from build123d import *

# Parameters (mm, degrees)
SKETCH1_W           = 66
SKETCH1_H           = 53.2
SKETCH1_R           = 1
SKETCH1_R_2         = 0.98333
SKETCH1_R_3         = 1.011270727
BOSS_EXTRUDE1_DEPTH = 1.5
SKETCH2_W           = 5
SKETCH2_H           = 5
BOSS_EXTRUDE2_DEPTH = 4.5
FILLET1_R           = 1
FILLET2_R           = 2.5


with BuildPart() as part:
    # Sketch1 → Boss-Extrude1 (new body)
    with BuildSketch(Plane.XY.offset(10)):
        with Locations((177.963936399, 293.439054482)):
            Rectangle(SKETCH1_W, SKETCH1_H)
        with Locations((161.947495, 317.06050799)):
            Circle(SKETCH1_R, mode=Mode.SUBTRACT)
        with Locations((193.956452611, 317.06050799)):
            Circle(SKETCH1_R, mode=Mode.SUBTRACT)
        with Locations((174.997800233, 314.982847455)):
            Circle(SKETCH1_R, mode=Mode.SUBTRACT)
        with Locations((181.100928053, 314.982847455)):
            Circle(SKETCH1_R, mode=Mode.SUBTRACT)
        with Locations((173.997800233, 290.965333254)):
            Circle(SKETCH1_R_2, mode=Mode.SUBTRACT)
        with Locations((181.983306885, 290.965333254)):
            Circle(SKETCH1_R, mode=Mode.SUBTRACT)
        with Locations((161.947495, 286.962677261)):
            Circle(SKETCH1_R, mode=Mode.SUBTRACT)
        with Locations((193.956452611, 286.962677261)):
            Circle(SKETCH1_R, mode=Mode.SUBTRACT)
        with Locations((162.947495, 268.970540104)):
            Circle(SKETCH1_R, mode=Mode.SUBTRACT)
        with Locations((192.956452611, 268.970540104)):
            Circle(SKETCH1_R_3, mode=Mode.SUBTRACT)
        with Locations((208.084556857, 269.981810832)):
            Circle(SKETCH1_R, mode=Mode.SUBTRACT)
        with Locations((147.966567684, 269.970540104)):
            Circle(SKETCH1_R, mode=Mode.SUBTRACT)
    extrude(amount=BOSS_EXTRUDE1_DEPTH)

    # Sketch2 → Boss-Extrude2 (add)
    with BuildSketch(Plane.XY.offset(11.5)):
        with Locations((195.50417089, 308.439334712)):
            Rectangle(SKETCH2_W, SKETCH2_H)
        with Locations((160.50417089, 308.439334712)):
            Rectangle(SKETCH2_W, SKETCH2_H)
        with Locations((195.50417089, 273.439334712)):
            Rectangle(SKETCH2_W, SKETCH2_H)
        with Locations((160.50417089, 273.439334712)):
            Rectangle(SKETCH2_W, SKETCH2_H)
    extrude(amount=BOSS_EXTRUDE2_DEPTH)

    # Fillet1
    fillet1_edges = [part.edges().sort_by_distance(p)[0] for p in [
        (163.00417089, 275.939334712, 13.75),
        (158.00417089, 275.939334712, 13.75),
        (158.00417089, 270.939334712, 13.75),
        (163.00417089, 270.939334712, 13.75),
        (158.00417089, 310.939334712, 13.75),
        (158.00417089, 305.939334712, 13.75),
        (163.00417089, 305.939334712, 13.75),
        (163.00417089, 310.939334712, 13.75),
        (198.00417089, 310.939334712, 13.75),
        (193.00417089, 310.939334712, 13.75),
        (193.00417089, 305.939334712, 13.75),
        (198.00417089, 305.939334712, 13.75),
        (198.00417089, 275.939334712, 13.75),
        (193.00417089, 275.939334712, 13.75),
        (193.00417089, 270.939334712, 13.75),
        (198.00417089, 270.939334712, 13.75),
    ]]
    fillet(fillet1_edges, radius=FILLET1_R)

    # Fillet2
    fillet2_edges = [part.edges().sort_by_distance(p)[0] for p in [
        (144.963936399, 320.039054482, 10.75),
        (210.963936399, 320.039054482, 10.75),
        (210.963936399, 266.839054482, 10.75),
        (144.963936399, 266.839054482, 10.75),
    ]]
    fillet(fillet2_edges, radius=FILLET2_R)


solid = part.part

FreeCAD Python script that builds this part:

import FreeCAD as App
import Part
import Sketcher
from FreeCAD import Vector
Q = App.Units.Quantity


def edges_at(feature, points):
    """Names of the edges that pass closest to the given points."""
    edges = feature.Shape.Edges
    near = lambda p: min(range(len(edges)), key=lambda i: edges[i].distToShape(Part.Vertex(*p))[0])
    return sorted({f"Edge{near(p) + 1}" for p in points})


def add_polygon(sketch, points):
    """Adds a closed chain of lines whose ends are joined by coincident constraints."""
    first, n = sketch.GeometryCount, len(points)
    for a, b in zip(points, points[1:] + points[:1]):
        sketch.addGeometry(Part.LineSegment(App.Vector(*a, 0), App.Vector(*b, 0)), False)
    for i in range(n):
        sketch.addConstraint(Sketcher.Constraint("Coincident", first + i, 2, first + (i + 1) % n, 1))

doc = App.newDocument("Part")
body = doc.addObject("PartDesign::Body", "Body")

sketch1 = doc.addObject("Sketcher::SketchObject", "Sketch")
body.addObject(sketch1)
sketch1.AttachmentSupport = (doc.XY_Plane, [""])
sketch1.MapMode = "FlatFace"
sketch1.AttachmentOffset = App.Placement(Vector(0, 0, 10), App.Rotation())
add_polygon(sketch1, [(145, 320), (145, 266.8), (211, 266.8), (211, 320)])
sketch1.addGeometry(Part.Circle(Vector(148, 270, 0), Vector(0, 0, 1), 1), False)
sketch1.addGeometry(Part.Circle(Vector(162.9, 269, 0), Vector(0, 0, 1), 1), False)
sketch1.addGeometry(Part.Circle(Vector(161.9, 287, 0), Vector(0, 0, 1), 1), False)
sketch1.addGeometry(Part.Circle(Vector(174, 291, 0), Vector(0, 0, 1), 1), False)
sketch1.addGeometry(Part.Circle(Vector(193, 269, 0), Vector(0, 0, 1), 1), False)
sketch1.addGeometry(Part.Circle(Vector(208.1, 270, 0), Vector(0, 0, 1), 1), False)
sketch1.addGeometry(Part.Circle(Vector(182, 291, 0), Vector(0, 0, 1), 1), False)
sketch1.addGeometry(Part.Circle(Vector(194, 287, 0), Vector(0, 0, 1), 1), False)
sketch1.addGeometry(Part.Circle(Vector(161.9, 317.1, 0), Vector(0, 0, 1), 1), False)
sketch1.addGeometry(Part.Circle(Vector(175, 315, 0), Vector(0, 0, 1), 1), False)
sketch1.addGeometry(Part.Circle(Vector(181.1, 315, 0), Vector(0, 0, 1), 1), False)
sketch1.addGeometry(Part.Circle(Vector(194, 317.1, 0), Vector(0, 0, 1), 1), False)
sketch1.addConstraint(Sketcher.Constraint("Vertical", 0))
sketch1.addConstraint(Sketcher.Constraint("Horizontal", 1))
sketch1.addConstraint(Sketcher.Constraint("Vertical", 2))
sketch1.addConstraint(Sketcher.Constraint("Horizontal", 3))
sketch1.addConstraint(Sketcher.Constraint("Equal", 4, 5))
sketch1.addConstraint(Sketcher.Constraint("Equal", 5, 6))
sketch1.addConstraint(Sketcher.Constraint("Equal", 6, 9))
sketch1.addConstraint(Sketcher.Constraint("Equal", 9, 10))
sketch1.addConstraint(Sketcher.Constraint("Equal", 10, 11))
sketch1.addConstraint(Sketcher.Constraint("Equal", 11, 12))
sketch1.addConstraint(Sketcher.Constraint("Equal", 12, 13))
sketch1.addConstraint(Sketcher.Constraint("Equal", 13, 14))
sketch1.addConstraint(Sketcher.Constraint("Equal", 14, 15))
sketch1.addConstraint(Sketcher.Constraint("Horizontal", 5, 3, 8, 3))
sketch1.addConstraint(Sketcher.Constraint("Horizontal", 7, 3, 10, 3))
sketch1.addConstraint(Sketcher.Constraint("Horizontal", 6, 3, 11, 3))
sketch1.addConstraint(Sketcher.Constraint("Horizontal", 13, 3, 14, 3))
sketch1.addConstraint(Sketcher.Constraint("Horizontal", 12, 3, 15, 3))
sketch1.addConstraint(Sketcher.Constraint("Vertical", 6, 3, 12, 3))
sketch1.addConstraint(Sketcher.Constraint("Vertical", 11, 3, 15, 3))
sketch1.addConstraint(Sketcher.Constraint("Diameter", 4, Q("2 mm")))
sketch1.addConstraint(Sketcher.Constraint("DistanceX", 1, 1, 1, 2, Q("66 mm")))
sketch1.addConstraint(Sketcher.Constraint("DistanceY", 0, 2, 0, 1, Q("53.2 mm")))
sketch1.addConstraint(Sketcher.Constraint("DistanceY", 5, 3, 4, 3, Q("1 mm")))
sketch1.addConstraint(Sketcher.Constraint("DistanceX", 6, 3, 5, 3, Q("1 mm")))
sketch1.addConstraint(Sketcher.Constraint("DistanceX", 8, 3, 11, 3, Q("1 mm")))
sketch1.addConstraint(Sketcher.Constraint("DistanceX", 7, 3, 13, 3, Q("1 mm")))
sketch1.addConstraint(Sketcher.Constraint("Diameter", 7, Q("1.96666 mm")))
sketch1.addConstraint(Sketcher.Constraint("Diameter", 8, Q("2.022541 mm")))
sketch1.addConstraint(Sketcher.Constraint("DistanceX", -1, 1, 7, 3, Q("173.9978 mm")))
sketch1.addConstraint(Sketcher.Constraint("DistanceY", -1, 1, 4, 3, Q("269.97054 mm")))
sketch1.addConstraint(Sketcher.Constraint("DistanceY", -1, 1, 9, 3, Q("269.981811 mm")))
sketch1.addConstraint(Sketcher.Constraint("DistanceX", -1, 1, 14, 3, Q("181.100928 mm")))
sketch1.addConstraint(Sketcher.Constraint("DistanceX", 5, 3, 9, 3, Q("45.137062 mm")))
sketch1.addConstraint(Sketcher.Constraint("DistanceX", 4, 3, 9, 3, Q("60.117989 mm")))
sketch1.addConstraint(Sketcher.Constraint("DistanceX", 6, 3, 10, 3, Q("20.035812 mm")))
sketch1.addConstraint(Sketcher.Constraint("DistanceY", 6, 3, 12, 3, Q("30.097831 mm")))
sketch1.addConstraint(Sketcher.Constraint("DistanceY", 13, 3, 12, 3, Q("2.077661 mm")))
sketch1.addConstraint(Sketcher.Constraint("DistanceX", 14, 3, 10, 3, Q("0.882379 mm")))
sketch1.addConstraint(Sketcher.Constraint("DistanceX", 0, 2, 4, 3, Q("3.002631 mm")))
sketch1.addConstraint(Sketcher.Constraint("DistanceY", 0, 2, 7, 3, Q("24.126279 mm")))
sketch1.addConstraint(Sketcher.Constraint("DistanceY", -1, 1, 6, 3, Q("286.962677 mm")))
sketch1.addConstraint(Sketcher.Constraint("DistanceY", -1, 1, 7, 3, Q("290.965333 mm")))
sketch1.addConstraint(Sketcher.Constraint("DistanceX", -1, 1, 8, 3, Q("192.956453 mm")))
pad1 = doc.addObject("PartDesign::Pad", "Pad")
body.addObject(pad1)
pad1.Profile = sketch1
pad1.Length = 1.5

sketch2 = doc.addObject("Sketcher::SketchObject", "Sketch001")
body.addObject(sketch2)
sketch2.AttachmentSupport = (doc.XY_Plane, [""])
sketch2.MapMode = "FlatFace"
sketch2.AttachmentOffset = App.Placement(Vector(0, 0, 11.5), App.Rotation())
add_polygon(sketch2, [(193, 311), (193, 306), (198, 306), (198, 311)])
add_polygon(sketch2, [(158, 311), (158, 306), (163, 306), (163, 311)])
add_polygon(sketch2, [(193, 276), (193, 271), (198, 271), (198, 276)])
add_polygon(sketch2, [(158, 276), (158, 271), (163, 271), (163, 276)])
sketch2.addConstraint(Sketcher.Constraint("Vertical", 0))
sketch2.addConstraint(Sketcher.Constraint("Horizontal", 1))
sketch2.addConstraint(Sketcher.Constraint("Vertical", 2))
sketch2.addConstraint(Sketcher.Constraint("Horizontal", 3))
sketch2.addConstraint(Sketcher.Constraint("Vertical", 4))
sketch2.addConstraint(Sketcher.Constraint("Horizontal", 5))
sketch2.addConstraint(Sketcher.Constraint("Vertical", 6))
sketch2.addConstraint(Sketcher.Constraint("Horizontal", 7))
sketch2.addConstraint(Sketcher.Constraint("Vertical", 8))
sketch2.addConstraint(Sketcher.Constraint("Horizontal", 9))
sketch2.addConstraint(Sketcher.Constraint("Vertical", 10))
sketch2.addConstraint(Sketcher.Constraint("Horizontal", 11))
sketch2.addConstraint(Sketcher.Constraint("Vertical", 12))
sketch2.addConstraint(Sketcher.Constraint("Horizontal", 13))
sketch2.addConstraint(Sketcher.Constraint("Vertical", 14))
sketch2.addConstraint(Sketcher.Constraint("Horizontal", 15))
sketch2.addConstraint(Sketcher.Constraint("Horizontal", 1, 2, 4, 2))
sketch2.addConstraint(Sketcher.Constraint("Horizontal", 3, 2, 6, 2))
sketch2.addConstraint(Sketcher.Constraint("Horizontal", 9, 2, 12, 2))
sketch2.addConstraint(Sketcher.Constraint("Horizontal", 11, 2, 14, 2))
sketch2.addConstraint(Sketcher.Constraint("Vertical", 3, 2, 8, 2))
sketch2.addConstraint(Sketcher.Constraint("Vertical", 2, 2, 9, 2))
sketch2.addConstraint(Sketcher.Constraint("Vertical", 7, 2, 12, 2))
sketch2.addConstraint(Sketcher.Constraint("Vertical", 6, 2, 13, 2))
sketch2.addConstraint(Sketcher.Constraint("Equal", 3, 5))
sketch2.addConstraint(Sketcher.Constraint("Equal", 15, 0))
sketch2.addConstraint(Sketcher.Constraint("Equal", 6, 8))
sketch2.addConstraint(Sketcher.Constraint("DistanceX", 1, 1, 1, 2, Q("5 mm")))
sketch2.addConstraint(Sketcher.Constraint("DistanceX", 4, 2, 0, 2, Q("35 mm")))
sketch2.addConstraint(Sketcher.Constraint("DistanceY", 8, 2, 0, 2, Q("35 mm")))
sketch2.addConstraint(Sketcher.Constraint("DistanceX", -1, 1, 0, 2, Q("193.004171 mm")))
sketch2.addConstraint(Sketcher.Constraint("DistanceY", -1, 1, 0, 2, Q("305.939335 mm")))
pad2 = doc.addObject("PartDesign::Pad", "Pad001")
body.addObject(pad2)
pad2.Profile = sketch2
pad2.Length = 4.5
doc.recompute()

fillet = doc.addObject("PartDesign::Fillet", "Fillet")
body.addObject(fillet)
fillet.Base = (pad2, edges_at(pad2, [
    (163.004, 275.939, 13.75),
    (158.004, 275.939, 13.75),
    (158.004, 270.939, 13.75),
    (163.004, 270.939, 13.75),
    (158.004, 310.939, 13.75),
    (158.004, 305.939, 13.75),
    (163.004, 305.939, 13.75),
    (163.004, 310.939, 13.75),
    (198.004, 310.939, 13.75),
    (193.004, 310.939, 13.75),
    (193.004, 305.939, 13.75),
    (198.004, 305.939, 13.75),
    (198.004, 275.939, 13.75),
    (193.004, 275.939, 13.75),
    (193.004, 270.939, 13.75),
    (198.004, 270.939, 13.75),
]))
fillet.Radius = 1
doc.recompute()

fillet2 = doc.addObject("PartDesign::Fillet", "Fillet001")
body.addObject(fillet2)
fillet2.Base = (fillet, edges_at(fillet, [
    (144.964, 320.039, 10.75),
    (210.964, 320.039, 10.75),
    (210.964, 266.839, 10.75),
    (144.964, 266.839, 10.75),
]))
fillet2.Radius = 2.5

doc.recompute()
